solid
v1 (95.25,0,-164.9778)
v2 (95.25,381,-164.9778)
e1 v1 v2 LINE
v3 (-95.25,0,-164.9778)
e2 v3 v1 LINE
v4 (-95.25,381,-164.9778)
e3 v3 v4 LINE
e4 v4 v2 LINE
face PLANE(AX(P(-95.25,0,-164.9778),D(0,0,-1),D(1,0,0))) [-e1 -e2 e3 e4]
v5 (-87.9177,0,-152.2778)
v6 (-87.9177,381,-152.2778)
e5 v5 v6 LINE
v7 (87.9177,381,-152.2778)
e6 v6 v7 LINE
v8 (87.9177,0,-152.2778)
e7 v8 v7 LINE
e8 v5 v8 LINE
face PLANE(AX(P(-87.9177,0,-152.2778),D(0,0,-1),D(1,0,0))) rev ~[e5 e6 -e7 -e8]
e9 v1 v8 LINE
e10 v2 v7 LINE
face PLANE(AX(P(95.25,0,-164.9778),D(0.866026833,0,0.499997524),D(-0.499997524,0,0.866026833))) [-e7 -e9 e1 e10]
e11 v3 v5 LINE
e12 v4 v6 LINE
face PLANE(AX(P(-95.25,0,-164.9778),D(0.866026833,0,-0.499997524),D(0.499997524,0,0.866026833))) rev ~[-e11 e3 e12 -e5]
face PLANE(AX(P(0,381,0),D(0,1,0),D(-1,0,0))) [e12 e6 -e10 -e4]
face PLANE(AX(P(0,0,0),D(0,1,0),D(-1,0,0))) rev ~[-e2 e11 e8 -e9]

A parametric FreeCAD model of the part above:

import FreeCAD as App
import Part
import Sketcher

V = App.Vector
Q = App.Units.Quantity

doc = App.newDocument("Part")
body = doc.addObject("PartDesign::Body", "Body")

# Sketch on XZ plane
sketch1 = doc.addObject("Sketcher::SketchObject", "Sketch")
body.addObject(sketch1)
sketch1.AttachmentSupport = (doc.XZ_Plane, [""])
sketch1.MapMode = "FlatFace"
sketch1.addGeometry([
    Part.LineSegment(V(95.25, -164.9778, 0), V(-95.25, -164.9778, 0)),
    Part.LineSegment(V(-95.25, -164.9778, 0), V(-87.9177, -152.2778, 0)),
    Part.LineSegment(V(-87.9177, -152.2778, 0), V(87.9177, -152.2778, 0)),
    Part.LineSegment(V(87.9177, -152.2778, 0), V(95.25, -164.9778, 0)),
], False)
sketch1.addConstraint([
    Sketcher.Constraint("Coincident", 0, 2, 1, 1),
    Sketcher.Constraint("Coincident", 1, 2, 2, 1),
    Sketcher.Constraint("Coincident", 2, 2, 3, 1),
    Sketcher.Constraint("Coincident", 3, 2, 0, 1),
    Sketcher.Constraint("Horizontal", 0),
    Sketcher.Constraint("Horizontal", 2),
    Sketcher.Constraint("Equal", 1, 3),
    Sketcher.Constraint("DistanceX", 0, 2, 0, 1, Q("7.5 in")),
    Sketcher.Constraint("DistanceY", 0, 2, 1, 2, Q("0.5 in")),
    Sketcher.Constraint("Angle", 1, Q("60.0002 deg")),
    Sketcher.Constraint("DistanceX", 0, 2, -1, 1, Q("3.75 in")),
    Sketcher.Constraint("DistanceY", 0, 2, -1, 1, Q("6.4952 in")),
])
pad1 = doc.addObject("PartDesign::Pad", "Pad")
body.addObject(pad1)
pad1.Profile = sketch1
pad1.Length = Q("15 in")
pad1.Reversed = True

doc.recompute()
